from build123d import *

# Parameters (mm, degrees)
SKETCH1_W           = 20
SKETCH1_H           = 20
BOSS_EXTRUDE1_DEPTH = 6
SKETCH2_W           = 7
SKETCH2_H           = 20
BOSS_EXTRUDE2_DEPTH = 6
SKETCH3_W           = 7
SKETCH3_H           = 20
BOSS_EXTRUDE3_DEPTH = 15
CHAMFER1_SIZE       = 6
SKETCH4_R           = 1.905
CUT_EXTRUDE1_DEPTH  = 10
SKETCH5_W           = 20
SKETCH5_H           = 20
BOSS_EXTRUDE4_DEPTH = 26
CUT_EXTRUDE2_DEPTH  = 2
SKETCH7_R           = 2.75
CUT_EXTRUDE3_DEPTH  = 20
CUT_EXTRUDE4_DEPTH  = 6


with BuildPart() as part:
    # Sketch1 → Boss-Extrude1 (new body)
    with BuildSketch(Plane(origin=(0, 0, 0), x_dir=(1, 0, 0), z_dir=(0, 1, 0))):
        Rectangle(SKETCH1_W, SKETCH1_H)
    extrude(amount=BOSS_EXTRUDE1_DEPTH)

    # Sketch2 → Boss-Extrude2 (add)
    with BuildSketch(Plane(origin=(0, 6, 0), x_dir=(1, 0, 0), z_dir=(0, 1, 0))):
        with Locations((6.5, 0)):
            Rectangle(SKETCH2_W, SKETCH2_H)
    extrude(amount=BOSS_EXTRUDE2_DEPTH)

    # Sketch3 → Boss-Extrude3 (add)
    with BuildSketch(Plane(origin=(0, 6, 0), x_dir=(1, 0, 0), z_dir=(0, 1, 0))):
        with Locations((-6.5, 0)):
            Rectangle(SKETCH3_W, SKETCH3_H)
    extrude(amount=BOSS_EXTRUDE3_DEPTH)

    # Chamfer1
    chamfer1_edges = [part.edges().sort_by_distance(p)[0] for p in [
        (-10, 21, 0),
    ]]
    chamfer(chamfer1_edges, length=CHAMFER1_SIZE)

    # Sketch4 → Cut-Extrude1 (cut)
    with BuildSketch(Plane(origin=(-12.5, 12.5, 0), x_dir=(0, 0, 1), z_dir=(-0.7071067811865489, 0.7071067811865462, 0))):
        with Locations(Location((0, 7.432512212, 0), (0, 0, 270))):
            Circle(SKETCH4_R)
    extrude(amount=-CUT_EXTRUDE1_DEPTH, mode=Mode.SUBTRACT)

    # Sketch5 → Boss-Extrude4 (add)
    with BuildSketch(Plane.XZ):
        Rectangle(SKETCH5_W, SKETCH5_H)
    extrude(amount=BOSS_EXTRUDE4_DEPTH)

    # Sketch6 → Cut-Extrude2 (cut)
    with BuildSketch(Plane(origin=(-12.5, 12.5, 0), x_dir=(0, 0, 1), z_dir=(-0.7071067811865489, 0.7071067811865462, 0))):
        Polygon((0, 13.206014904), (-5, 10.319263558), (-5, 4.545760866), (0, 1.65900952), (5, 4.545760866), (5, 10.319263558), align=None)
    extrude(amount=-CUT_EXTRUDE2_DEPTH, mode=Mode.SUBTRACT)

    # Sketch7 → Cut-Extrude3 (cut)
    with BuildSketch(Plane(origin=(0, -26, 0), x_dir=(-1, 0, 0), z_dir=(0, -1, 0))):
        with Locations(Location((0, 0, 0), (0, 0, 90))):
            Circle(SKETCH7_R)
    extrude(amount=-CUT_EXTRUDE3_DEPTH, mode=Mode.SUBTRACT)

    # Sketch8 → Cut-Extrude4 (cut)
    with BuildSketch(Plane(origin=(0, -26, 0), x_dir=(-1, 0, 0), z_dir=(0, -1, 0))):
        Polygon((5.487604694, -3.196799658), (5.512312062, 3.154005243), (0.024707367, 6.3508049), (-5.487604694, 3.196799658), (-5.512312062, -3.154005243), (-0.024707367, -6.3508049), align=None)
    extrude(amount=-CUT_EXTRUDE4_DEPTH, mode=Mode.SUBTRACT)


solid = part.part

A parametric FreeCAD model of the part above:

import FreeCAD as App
import Part
import Sketcher
Q = App.Units.Quantity


def edges_at(feature, points):
    """Names of the edges that pass closest to the given points."""
    edges = feature.Shape.Edges
    near = lambda p: min(range(len(edges)), key=lambda i: edges[i].distToShape(Part.Vertex(*p))[0])
    return sorted({f"Edge{near(p) + 1}" for p in points})

doc = App.newDocument("Part")
body = doc.addObject("PartDesign::Body", "Body")

# Sketch on XZ plane
sketch1 = doc.addObject("Sketcher::SketchObject", "Sketch")
body.addObject(sketch1)
sketch1.AttachmentSupport = (doc.XZ_Plane, [""])
sketch1.MapMode = "FlatFace"
sketch1.addGeometry([
    Part.LineSegment(App.Vector(-10, -10, 0), App.Vector(-10, 10, 0)),
    Part.LineSegment(App.Vector(-10, 10, 0), App.Vector(10, 10, 0)),
    Part.LineSegment(App.Vector(10, 10, 0), App.Vector(10, -10, 0)),
    Part.LineSegment(App.Vector(10, -10, 0), App.Vector(-10, -10, 0)),
], False)
sketch1.addConstraint([
    Sketcher.Constraint("Coincident", 0, 2, 1, 1),
    Sketcher.Constraint("Coincident", 1, 2, 2, 1),
    Sketcher.Constraint("Coincident", 2, 2, 3, 1),
    Sketcher.Constraint("Coincident", 3, 2, 0, 1),
    Sketcher.Constraint("Vertical", 0),
    Sketcher.Constraint("Horizontal", 1),
    Sketcher.Constraint("Vertical", 2),
    Sketcher.Constraint("Horizontal", 3),
    Sketcher.Constraint("Symmetric", 0, 2, 2, 2, -1, 1),
    Sketcher.Constraint("Equal", 3, 0),
    Sketcher.Constraint("DistanceX", 1, 1, 1, 2, Q("20 mm")),
])
pad1 = doc.addObject("PartDesign::Pad", "Pad")
body.addObject(pad1)
pad1.Profile = sketch1
pad1.Length = 6
pad1.Reversed = True

# Sketch on XZ plane
sketch2 = doc.addObject("Sketcher::SketchObject", "Sketch001")
body.addObject(sketch2)
sketch2.AttachmentSupport = (doc.XZ_Plane, [""])
sketch2.MapMode = "FlatFace"
sketch2.AttachmentOffset = App.Placement(App.Vector(0, 0, -6), App.Rotation())
sketch2.addGeometry([
    Part.LineSegment(App.Vector(3, -10, 0), App.Vector(3, 10, 0)),
    Part.LineSegment(App.Vector(3, 10, 0), App.Vector(10, 10, 0)),
    Part.LineSegment(App.Vector(10, 10, 0), App.Vector(10, -10, 0)),
    Part.LineSegment(App.Vector(10, -10, 0), App.Vector(3, -10, 0)),
], False)
sketch2.addConstraint([
    Sketcher.Constraint("Coincident", 0, 2, 1, 1),
    Sketcher.Constraint("Coincident", 1, 2, 2, 1),
    Sketcher.Constraint("Coincident", 2, 2, 3, 1),
    Sketcher.Constraint("Coincident", 3, 2, 0, 1),
    Sketcher.Constraint("Vertical", 0),
    Sketcher.Constraint("Horizontal", 1),
    Sketcher.Constraint("Vertical", 2),
    Sketcher.Constraint("Horizontal", 3),
    Sketcher.Constraint("DistanceX", 1, 1, 1, 2, Q("7 mm")),
    Sketcher.Constraint("DistanceY", 0, 1, 0, 2, Q("20 mm")),
    Sketcher.Constraint("DistanceX", -1, 1, 0, 2, Q("3 mm")),
    Sketcher.Constraint("DistanceY", -1, 1, 0, 2, Q("10 mm")),
])
pad2 = doc.addObject("PartDesign::Pad", "Pad001")
body.addObject(pad2)
pad2.Profile = sketch2
pad2.Length = 6
pad2.Reversed = True

# Sketch on XZ plane
sketch3 = doc.addObject("Sketcher::SketchObject", "Sketch002")
body.addObject(sketch3)
sketch3.AttachmentSupport = (doc.XZ_Plane, [""])
sketch3.MapMode = "FlatFace"
sketch3.AttachmentOffset = App.Placement(App.Vector(0, 0, -6), App.Rotation())
sketch3.addGeometry([
    Part.LineSegment(App.Vector(-10, -10, 0), App.Vector(-10, 10, 0)),
    Part.LineSegment(App.Vector(-10, 10, 0), App.Vector(-3, 10, 0)),
    Part.LineSegment(App.Vector(-3, 10, 0), App.Vector(-3, -10, 0)),
    Part.LineSegment(App.Vector(-3, -10, 0), App.Vector(-10, -10, 0)),
], False)
sketch3.addConstraint([
    Sketcher.Constraint("Coincident", 0, 2, 1, 1),
    Sketcher.Constraint("Coincident", 1, 2, 2, 1),
    Sketcher.Constraint("Coincident", 2, 2, 3, 1),
    Sketcher.Constraint("Coincident", 3, 2, 0, 1),
    Sketcher.Constraint("Vertical", 0),
    Sketcher.Constraint("Horizontal", 1),
    Sketcher.Constraint("Vertical", 2),
    Sketcher.Constraint("Horizontal", 3),
    Sketcher.Constraint("DistanceX", 1, 1, 1, 2, Q("7 mm")),
    Sketcher.Constraint("DistanceY", 0, 1, 0, 2, Q("20 mm")),
    Sketcher.Constraint("DistanceX", 0, 2, -1, 1, Q("10 mm")),
    Sketcher.Constraint("DistanceY", -1, 1, 0, 2, Q("10 mm")),
])
pad3 = doc.addObject("PartDesign::Pad", "Pad002")
body.addObject(pad3)
pad3.Profile = sketch3
pad3.Length = 15
pad3.Reversed = True
doc.recompute()

chamfer = doc.addObject("PartDesign::Chamfer", "Chamfer")
body.addObject(chamfer)
chamfer.Base = (pad3, edges_at(pad3, [(-10, 21, 0)]))
chamfer.Size = 6

# Sketch on an angled plane
sketch4 = doc.addObject("Sketcher::SketchObject", "Sketch003")
body.addObject(sketch4)
sketch4.Placement = App.Placement(App.Vector(-12.5, 12.5, 0), App.Rotation(App.Vector(0, 0, 1), App.Vector(0.707106781, 0.707106781, 0), App.Vector(-0.707106781, 0.707106781, 0), "ZXY"))
sketch4.addGeometry(Part.Circle(App.Vector(0, 7.4, 0), App.Vector(0, 0, 1), 1.9), False)
sketch4.addConstraint([
    Sketcher.Constraint("PointOnObject", 0, 3, -2),
    Sketcher.Constraint("Diameter", 0, Q("3.81 mm")),
    Sketcher.Constraint("DistanceY", -1, 1, 0, 3, Q("7.432512 mm")),
])
pocket1 = doc.addObject("PartDesign::Pocket", "Pocket")
body.addObject(pocket1)
pocket1.Profile = sketch4
pocket1.Length = 10

# Sketch on XZ plane
sketch5 = doc.addObject("Sketcher::SketchObject", "Sketch004")
body.addObject(sketch5)
sketch5.AttachmentSupport = (doc.XZ_Plane, [""])
sketch5.MapMode = "FlatFace"
sketch5.addGeometry([
    Part.LineSegment(App.Vector(-10, 10, 0), App.Vector(-10, -10, 0)),
    Part.LineSegment(App.Vector(-10, -10, 0), App.Vector(10, -10, 0)),
    Part.LineSegment(App.Vector(10, -10, 0), App.Vector(10, 10, 0)),
    Part.LineSegment(App.Vector(10, 10, 0), App.Vector(-10, 10, 0)),
], False)
sketch5.addConstraint([
    Sketcher.Constraint("Coincident", 0, 2, 1, 1),
    Sketcher.Constraint("Coincident", 1, 2, 2, 1),
    Sketcher.Constraint("Coincident", 2, 2, 3, 1),
    Sketcher.Constraint("Coincident", 3, 2, 0, 1),
    Sketcher.Constraint("Vertical", 0),
    Sketcher.Constraint("Horizontal", 1),
    Sketcher.Constraint("Vertical", 2),
    Sketcher.Constraint("Horizontal", 3),
    Sketcher.Constraint("Symmetric", 0, 2, 2, 2, -1, 1),
    Sketcher.Constraint("Equal", 3, 0),
    Sketcher.Constraint("DistanceX", 1, 1, 1, 2, Q("20 mm")),
])
pad4 = doc.addObject("PartDesign::Pad", "Pad003")
body.addObject(pad4)
pad4.Profile = sketch5
pad4.Length = 26

# Sketch on an angled plane
sketch6 = doc.addObject("Sketcher::SketchObject", "Sketch005")
body.addObject(sketch6)
sketch6.Placement = App.Placement(App.Vector(-12.5, 12.5, 0), App.Rotation(App.Vector(0, 0, 1), App.Vector(0.707106781, 0.707106781, 0), App.Vector(-0.707106781, 0.707106781, 0), "ZXY"))
sketch6.addGeometry([
    Part.LineSegment(App.Vector(0, 13, 0), App.Vector(-5, 10, 0)),  # 0
    Part.LineSegment(App.Vector(-5, 10, 0), App.Vector(-5, 5, 0)),  # 1
    Part.LineSegment(App.Vector(-5, 5, 0), App.Vector(0, 2, 0)),  # 2
    Part.LineSegment(App.Vector(0, 2, 0), App.Vector(5, 5, 0)),  # 3
    Part.LineSegment(App.Vector(5, 5, 0), App.Vector(5, 10, 0)),  # 4
    Part.LineSegment(App.Vector(5, 10, 0), App.Vector(0, 13, 0)),  # 5
], False)
sketch6.addConstraint([
    Sketcher.Constraint("Coincident", 0, 2, 1, 1),
    Sketcher.Constraint("Coincident", 1, 2, 2, 1),
    Sketcher.Constraint("Coincident", 2, 2, 3, 1),
    Sketcher.Constraint("Coincident", 3, 2, 4, 1),
    Sketcher.Constraint("Coincident", 4, 2, 5, 1),
    Sketcher.Constraint("Coincident", 5, 2, 0, 1),
    Sketcher.Constraint("Vertical", 1),
    Sketcher.Constraint("Vertical", 4),
    Sketcher.Constraint("Symmetric", 1, 2, 3, 2, -2),
    Sketcher.Constraint("PointOnObject", 2, 2, -2),
    Sketcher.Constraint("PointOnObject", 5, 2, -2),
    Sketcher.Constraint("Parallel", 0, 3),
    Sketcher.Constraint("Parallel", 2, 5),
    Sketcher.Constraint("Angle", 0, Q("-150 deg")),
    Sketcher.Constraint("DistanceX", 0, 2, -1, 1, Q("5 mm")),
    Sketcher.Constraint("DistanceY", 1, 2, 1, 1, Q("5.773503 mm")),
    Sketcher.Constraint("DistanceY", -1, 1, 1, 2, Q("4.545761 mm")),
])
pocket2 = doc.addObject("PartDesign::Pocket", "Pocket001")
body.addObject(pocket2)
pocket2.Profile = sketch6
pocket2.Length = 2

# Sketch on XZ plane
sketch7 = doc.addObject("Sketcher::SketchObject", "Sketch006")
body.addObject(sketch7)
sketch7.AttachmentSupport = (doc.XZ_Plane, [""])
sketch7.MapMode = "FlatFace"
sketch7.AttachmentOffset = App.Placement(App.Vector(0, 0, 26), App.Rotation())
sketch7.addGeometry(Part.Circle(App.Vector(0, 0, 0), App.Vector(0, 0, 1), 2.8), False)
sketch7.addConstraint([
    Sketcher.Constraint("Coincident", 0, 3, -1, 1),
    Sketcher.Constraint("Diameter", 0, Q("5.5 mm")),
])
pocket3 = doc.addObject("PartDesign::Pocket", "Pocket002")
body.addObject(pocket3)
pocket3.Profile = sketch7
pocket3.Length = 20

# Sketch on XZ plane
sketch8 = doc.addObject("Sketcher::SketchObject", "Sketch007")
body.addObject(sketch8)
sketch8.AttachmentSupport = (doc.XZ_Plane, [""])
sketch8.MapMode = "FlatFace"
sketch8.AttachmentOffset = App.Placement(App.Vector(0, 0, 26), App.Rotation())
sketch8.addGeometry([
    Part.LineSegment(App.Vector(-5, 3, 0), App.Vector(-6, -3, 0)),  # 0
    Part.LineSegment(App.Vector(-6, -3, 0), App.Vector(0, -6, 0)),  # 1
    Part.LineSegment(App.Vector(0, -6, 0), App.Vector(5, -3, 0)),  # 2
    Part.LineSegment(App.Vector(5, -3, 0), App.Vector(6, 3, 0)),  # 3
    Part.LineSegment(App.Vector(6, 3, 0), App.Vector(0, 6, 0)),  # 4
    Part.LineSegment(App.Vector(0, 6, 0), App.Vector(-5, 3, 0)),  # 5
], False)
sketch8.addConstraint([
    Sketcher.Constraint("Coincident", 0, 2, 1, 1),
    Sketcher.Constraint("Coincident", 1, 2, 2, 1),
    Sketcher.Constraint("Coincident", 2, 2, 3, 1),
    Sketcher.Constraint("Coincident", 3, 2, 4, 1),
    Sketcher.Constraint("Coincident", 4, 2, 5, 1),
    Sketcher.Constraint("Coincident", 5, 2, 0, 1),
    Sketcher.Constraint("Symmetric", 0, 2, 3, 2, -1, 1),
    Sketcher.Constraint("Symmetric", 1, 2, 4, 2, -1, 1),
    Sketcher.Constraint("Symmetric", 2, 2, 5, 2, -1, 1),
    Sketcher.Constraint("Equal", 0, 1),
    Sketcher.Constraint("Equal", 1, 2),
    Sketcher.Constraint("DistanceY", 2, 2, -1, 1, Q("3.1968 mm")),
    Sketcher.Constraint("DistanceY", 1, 2, 0, 2, Q("3.1968 mm")),
    Sketcher.Constraint("DistanceX", 1, 2, 3, 2, Q("5.537019 mm")),
    Sketcher.Constraint("DistanceY", 1, 2, 3, 2, Q("9.50481 mm")),
])
pocket4 = doc.addObject("PartDesign::Pocket", "Pocket003")
body.addObject(pocket4)
pocket4.Profile = sketch8
pocket4.Length = 6

doc.recompute()
